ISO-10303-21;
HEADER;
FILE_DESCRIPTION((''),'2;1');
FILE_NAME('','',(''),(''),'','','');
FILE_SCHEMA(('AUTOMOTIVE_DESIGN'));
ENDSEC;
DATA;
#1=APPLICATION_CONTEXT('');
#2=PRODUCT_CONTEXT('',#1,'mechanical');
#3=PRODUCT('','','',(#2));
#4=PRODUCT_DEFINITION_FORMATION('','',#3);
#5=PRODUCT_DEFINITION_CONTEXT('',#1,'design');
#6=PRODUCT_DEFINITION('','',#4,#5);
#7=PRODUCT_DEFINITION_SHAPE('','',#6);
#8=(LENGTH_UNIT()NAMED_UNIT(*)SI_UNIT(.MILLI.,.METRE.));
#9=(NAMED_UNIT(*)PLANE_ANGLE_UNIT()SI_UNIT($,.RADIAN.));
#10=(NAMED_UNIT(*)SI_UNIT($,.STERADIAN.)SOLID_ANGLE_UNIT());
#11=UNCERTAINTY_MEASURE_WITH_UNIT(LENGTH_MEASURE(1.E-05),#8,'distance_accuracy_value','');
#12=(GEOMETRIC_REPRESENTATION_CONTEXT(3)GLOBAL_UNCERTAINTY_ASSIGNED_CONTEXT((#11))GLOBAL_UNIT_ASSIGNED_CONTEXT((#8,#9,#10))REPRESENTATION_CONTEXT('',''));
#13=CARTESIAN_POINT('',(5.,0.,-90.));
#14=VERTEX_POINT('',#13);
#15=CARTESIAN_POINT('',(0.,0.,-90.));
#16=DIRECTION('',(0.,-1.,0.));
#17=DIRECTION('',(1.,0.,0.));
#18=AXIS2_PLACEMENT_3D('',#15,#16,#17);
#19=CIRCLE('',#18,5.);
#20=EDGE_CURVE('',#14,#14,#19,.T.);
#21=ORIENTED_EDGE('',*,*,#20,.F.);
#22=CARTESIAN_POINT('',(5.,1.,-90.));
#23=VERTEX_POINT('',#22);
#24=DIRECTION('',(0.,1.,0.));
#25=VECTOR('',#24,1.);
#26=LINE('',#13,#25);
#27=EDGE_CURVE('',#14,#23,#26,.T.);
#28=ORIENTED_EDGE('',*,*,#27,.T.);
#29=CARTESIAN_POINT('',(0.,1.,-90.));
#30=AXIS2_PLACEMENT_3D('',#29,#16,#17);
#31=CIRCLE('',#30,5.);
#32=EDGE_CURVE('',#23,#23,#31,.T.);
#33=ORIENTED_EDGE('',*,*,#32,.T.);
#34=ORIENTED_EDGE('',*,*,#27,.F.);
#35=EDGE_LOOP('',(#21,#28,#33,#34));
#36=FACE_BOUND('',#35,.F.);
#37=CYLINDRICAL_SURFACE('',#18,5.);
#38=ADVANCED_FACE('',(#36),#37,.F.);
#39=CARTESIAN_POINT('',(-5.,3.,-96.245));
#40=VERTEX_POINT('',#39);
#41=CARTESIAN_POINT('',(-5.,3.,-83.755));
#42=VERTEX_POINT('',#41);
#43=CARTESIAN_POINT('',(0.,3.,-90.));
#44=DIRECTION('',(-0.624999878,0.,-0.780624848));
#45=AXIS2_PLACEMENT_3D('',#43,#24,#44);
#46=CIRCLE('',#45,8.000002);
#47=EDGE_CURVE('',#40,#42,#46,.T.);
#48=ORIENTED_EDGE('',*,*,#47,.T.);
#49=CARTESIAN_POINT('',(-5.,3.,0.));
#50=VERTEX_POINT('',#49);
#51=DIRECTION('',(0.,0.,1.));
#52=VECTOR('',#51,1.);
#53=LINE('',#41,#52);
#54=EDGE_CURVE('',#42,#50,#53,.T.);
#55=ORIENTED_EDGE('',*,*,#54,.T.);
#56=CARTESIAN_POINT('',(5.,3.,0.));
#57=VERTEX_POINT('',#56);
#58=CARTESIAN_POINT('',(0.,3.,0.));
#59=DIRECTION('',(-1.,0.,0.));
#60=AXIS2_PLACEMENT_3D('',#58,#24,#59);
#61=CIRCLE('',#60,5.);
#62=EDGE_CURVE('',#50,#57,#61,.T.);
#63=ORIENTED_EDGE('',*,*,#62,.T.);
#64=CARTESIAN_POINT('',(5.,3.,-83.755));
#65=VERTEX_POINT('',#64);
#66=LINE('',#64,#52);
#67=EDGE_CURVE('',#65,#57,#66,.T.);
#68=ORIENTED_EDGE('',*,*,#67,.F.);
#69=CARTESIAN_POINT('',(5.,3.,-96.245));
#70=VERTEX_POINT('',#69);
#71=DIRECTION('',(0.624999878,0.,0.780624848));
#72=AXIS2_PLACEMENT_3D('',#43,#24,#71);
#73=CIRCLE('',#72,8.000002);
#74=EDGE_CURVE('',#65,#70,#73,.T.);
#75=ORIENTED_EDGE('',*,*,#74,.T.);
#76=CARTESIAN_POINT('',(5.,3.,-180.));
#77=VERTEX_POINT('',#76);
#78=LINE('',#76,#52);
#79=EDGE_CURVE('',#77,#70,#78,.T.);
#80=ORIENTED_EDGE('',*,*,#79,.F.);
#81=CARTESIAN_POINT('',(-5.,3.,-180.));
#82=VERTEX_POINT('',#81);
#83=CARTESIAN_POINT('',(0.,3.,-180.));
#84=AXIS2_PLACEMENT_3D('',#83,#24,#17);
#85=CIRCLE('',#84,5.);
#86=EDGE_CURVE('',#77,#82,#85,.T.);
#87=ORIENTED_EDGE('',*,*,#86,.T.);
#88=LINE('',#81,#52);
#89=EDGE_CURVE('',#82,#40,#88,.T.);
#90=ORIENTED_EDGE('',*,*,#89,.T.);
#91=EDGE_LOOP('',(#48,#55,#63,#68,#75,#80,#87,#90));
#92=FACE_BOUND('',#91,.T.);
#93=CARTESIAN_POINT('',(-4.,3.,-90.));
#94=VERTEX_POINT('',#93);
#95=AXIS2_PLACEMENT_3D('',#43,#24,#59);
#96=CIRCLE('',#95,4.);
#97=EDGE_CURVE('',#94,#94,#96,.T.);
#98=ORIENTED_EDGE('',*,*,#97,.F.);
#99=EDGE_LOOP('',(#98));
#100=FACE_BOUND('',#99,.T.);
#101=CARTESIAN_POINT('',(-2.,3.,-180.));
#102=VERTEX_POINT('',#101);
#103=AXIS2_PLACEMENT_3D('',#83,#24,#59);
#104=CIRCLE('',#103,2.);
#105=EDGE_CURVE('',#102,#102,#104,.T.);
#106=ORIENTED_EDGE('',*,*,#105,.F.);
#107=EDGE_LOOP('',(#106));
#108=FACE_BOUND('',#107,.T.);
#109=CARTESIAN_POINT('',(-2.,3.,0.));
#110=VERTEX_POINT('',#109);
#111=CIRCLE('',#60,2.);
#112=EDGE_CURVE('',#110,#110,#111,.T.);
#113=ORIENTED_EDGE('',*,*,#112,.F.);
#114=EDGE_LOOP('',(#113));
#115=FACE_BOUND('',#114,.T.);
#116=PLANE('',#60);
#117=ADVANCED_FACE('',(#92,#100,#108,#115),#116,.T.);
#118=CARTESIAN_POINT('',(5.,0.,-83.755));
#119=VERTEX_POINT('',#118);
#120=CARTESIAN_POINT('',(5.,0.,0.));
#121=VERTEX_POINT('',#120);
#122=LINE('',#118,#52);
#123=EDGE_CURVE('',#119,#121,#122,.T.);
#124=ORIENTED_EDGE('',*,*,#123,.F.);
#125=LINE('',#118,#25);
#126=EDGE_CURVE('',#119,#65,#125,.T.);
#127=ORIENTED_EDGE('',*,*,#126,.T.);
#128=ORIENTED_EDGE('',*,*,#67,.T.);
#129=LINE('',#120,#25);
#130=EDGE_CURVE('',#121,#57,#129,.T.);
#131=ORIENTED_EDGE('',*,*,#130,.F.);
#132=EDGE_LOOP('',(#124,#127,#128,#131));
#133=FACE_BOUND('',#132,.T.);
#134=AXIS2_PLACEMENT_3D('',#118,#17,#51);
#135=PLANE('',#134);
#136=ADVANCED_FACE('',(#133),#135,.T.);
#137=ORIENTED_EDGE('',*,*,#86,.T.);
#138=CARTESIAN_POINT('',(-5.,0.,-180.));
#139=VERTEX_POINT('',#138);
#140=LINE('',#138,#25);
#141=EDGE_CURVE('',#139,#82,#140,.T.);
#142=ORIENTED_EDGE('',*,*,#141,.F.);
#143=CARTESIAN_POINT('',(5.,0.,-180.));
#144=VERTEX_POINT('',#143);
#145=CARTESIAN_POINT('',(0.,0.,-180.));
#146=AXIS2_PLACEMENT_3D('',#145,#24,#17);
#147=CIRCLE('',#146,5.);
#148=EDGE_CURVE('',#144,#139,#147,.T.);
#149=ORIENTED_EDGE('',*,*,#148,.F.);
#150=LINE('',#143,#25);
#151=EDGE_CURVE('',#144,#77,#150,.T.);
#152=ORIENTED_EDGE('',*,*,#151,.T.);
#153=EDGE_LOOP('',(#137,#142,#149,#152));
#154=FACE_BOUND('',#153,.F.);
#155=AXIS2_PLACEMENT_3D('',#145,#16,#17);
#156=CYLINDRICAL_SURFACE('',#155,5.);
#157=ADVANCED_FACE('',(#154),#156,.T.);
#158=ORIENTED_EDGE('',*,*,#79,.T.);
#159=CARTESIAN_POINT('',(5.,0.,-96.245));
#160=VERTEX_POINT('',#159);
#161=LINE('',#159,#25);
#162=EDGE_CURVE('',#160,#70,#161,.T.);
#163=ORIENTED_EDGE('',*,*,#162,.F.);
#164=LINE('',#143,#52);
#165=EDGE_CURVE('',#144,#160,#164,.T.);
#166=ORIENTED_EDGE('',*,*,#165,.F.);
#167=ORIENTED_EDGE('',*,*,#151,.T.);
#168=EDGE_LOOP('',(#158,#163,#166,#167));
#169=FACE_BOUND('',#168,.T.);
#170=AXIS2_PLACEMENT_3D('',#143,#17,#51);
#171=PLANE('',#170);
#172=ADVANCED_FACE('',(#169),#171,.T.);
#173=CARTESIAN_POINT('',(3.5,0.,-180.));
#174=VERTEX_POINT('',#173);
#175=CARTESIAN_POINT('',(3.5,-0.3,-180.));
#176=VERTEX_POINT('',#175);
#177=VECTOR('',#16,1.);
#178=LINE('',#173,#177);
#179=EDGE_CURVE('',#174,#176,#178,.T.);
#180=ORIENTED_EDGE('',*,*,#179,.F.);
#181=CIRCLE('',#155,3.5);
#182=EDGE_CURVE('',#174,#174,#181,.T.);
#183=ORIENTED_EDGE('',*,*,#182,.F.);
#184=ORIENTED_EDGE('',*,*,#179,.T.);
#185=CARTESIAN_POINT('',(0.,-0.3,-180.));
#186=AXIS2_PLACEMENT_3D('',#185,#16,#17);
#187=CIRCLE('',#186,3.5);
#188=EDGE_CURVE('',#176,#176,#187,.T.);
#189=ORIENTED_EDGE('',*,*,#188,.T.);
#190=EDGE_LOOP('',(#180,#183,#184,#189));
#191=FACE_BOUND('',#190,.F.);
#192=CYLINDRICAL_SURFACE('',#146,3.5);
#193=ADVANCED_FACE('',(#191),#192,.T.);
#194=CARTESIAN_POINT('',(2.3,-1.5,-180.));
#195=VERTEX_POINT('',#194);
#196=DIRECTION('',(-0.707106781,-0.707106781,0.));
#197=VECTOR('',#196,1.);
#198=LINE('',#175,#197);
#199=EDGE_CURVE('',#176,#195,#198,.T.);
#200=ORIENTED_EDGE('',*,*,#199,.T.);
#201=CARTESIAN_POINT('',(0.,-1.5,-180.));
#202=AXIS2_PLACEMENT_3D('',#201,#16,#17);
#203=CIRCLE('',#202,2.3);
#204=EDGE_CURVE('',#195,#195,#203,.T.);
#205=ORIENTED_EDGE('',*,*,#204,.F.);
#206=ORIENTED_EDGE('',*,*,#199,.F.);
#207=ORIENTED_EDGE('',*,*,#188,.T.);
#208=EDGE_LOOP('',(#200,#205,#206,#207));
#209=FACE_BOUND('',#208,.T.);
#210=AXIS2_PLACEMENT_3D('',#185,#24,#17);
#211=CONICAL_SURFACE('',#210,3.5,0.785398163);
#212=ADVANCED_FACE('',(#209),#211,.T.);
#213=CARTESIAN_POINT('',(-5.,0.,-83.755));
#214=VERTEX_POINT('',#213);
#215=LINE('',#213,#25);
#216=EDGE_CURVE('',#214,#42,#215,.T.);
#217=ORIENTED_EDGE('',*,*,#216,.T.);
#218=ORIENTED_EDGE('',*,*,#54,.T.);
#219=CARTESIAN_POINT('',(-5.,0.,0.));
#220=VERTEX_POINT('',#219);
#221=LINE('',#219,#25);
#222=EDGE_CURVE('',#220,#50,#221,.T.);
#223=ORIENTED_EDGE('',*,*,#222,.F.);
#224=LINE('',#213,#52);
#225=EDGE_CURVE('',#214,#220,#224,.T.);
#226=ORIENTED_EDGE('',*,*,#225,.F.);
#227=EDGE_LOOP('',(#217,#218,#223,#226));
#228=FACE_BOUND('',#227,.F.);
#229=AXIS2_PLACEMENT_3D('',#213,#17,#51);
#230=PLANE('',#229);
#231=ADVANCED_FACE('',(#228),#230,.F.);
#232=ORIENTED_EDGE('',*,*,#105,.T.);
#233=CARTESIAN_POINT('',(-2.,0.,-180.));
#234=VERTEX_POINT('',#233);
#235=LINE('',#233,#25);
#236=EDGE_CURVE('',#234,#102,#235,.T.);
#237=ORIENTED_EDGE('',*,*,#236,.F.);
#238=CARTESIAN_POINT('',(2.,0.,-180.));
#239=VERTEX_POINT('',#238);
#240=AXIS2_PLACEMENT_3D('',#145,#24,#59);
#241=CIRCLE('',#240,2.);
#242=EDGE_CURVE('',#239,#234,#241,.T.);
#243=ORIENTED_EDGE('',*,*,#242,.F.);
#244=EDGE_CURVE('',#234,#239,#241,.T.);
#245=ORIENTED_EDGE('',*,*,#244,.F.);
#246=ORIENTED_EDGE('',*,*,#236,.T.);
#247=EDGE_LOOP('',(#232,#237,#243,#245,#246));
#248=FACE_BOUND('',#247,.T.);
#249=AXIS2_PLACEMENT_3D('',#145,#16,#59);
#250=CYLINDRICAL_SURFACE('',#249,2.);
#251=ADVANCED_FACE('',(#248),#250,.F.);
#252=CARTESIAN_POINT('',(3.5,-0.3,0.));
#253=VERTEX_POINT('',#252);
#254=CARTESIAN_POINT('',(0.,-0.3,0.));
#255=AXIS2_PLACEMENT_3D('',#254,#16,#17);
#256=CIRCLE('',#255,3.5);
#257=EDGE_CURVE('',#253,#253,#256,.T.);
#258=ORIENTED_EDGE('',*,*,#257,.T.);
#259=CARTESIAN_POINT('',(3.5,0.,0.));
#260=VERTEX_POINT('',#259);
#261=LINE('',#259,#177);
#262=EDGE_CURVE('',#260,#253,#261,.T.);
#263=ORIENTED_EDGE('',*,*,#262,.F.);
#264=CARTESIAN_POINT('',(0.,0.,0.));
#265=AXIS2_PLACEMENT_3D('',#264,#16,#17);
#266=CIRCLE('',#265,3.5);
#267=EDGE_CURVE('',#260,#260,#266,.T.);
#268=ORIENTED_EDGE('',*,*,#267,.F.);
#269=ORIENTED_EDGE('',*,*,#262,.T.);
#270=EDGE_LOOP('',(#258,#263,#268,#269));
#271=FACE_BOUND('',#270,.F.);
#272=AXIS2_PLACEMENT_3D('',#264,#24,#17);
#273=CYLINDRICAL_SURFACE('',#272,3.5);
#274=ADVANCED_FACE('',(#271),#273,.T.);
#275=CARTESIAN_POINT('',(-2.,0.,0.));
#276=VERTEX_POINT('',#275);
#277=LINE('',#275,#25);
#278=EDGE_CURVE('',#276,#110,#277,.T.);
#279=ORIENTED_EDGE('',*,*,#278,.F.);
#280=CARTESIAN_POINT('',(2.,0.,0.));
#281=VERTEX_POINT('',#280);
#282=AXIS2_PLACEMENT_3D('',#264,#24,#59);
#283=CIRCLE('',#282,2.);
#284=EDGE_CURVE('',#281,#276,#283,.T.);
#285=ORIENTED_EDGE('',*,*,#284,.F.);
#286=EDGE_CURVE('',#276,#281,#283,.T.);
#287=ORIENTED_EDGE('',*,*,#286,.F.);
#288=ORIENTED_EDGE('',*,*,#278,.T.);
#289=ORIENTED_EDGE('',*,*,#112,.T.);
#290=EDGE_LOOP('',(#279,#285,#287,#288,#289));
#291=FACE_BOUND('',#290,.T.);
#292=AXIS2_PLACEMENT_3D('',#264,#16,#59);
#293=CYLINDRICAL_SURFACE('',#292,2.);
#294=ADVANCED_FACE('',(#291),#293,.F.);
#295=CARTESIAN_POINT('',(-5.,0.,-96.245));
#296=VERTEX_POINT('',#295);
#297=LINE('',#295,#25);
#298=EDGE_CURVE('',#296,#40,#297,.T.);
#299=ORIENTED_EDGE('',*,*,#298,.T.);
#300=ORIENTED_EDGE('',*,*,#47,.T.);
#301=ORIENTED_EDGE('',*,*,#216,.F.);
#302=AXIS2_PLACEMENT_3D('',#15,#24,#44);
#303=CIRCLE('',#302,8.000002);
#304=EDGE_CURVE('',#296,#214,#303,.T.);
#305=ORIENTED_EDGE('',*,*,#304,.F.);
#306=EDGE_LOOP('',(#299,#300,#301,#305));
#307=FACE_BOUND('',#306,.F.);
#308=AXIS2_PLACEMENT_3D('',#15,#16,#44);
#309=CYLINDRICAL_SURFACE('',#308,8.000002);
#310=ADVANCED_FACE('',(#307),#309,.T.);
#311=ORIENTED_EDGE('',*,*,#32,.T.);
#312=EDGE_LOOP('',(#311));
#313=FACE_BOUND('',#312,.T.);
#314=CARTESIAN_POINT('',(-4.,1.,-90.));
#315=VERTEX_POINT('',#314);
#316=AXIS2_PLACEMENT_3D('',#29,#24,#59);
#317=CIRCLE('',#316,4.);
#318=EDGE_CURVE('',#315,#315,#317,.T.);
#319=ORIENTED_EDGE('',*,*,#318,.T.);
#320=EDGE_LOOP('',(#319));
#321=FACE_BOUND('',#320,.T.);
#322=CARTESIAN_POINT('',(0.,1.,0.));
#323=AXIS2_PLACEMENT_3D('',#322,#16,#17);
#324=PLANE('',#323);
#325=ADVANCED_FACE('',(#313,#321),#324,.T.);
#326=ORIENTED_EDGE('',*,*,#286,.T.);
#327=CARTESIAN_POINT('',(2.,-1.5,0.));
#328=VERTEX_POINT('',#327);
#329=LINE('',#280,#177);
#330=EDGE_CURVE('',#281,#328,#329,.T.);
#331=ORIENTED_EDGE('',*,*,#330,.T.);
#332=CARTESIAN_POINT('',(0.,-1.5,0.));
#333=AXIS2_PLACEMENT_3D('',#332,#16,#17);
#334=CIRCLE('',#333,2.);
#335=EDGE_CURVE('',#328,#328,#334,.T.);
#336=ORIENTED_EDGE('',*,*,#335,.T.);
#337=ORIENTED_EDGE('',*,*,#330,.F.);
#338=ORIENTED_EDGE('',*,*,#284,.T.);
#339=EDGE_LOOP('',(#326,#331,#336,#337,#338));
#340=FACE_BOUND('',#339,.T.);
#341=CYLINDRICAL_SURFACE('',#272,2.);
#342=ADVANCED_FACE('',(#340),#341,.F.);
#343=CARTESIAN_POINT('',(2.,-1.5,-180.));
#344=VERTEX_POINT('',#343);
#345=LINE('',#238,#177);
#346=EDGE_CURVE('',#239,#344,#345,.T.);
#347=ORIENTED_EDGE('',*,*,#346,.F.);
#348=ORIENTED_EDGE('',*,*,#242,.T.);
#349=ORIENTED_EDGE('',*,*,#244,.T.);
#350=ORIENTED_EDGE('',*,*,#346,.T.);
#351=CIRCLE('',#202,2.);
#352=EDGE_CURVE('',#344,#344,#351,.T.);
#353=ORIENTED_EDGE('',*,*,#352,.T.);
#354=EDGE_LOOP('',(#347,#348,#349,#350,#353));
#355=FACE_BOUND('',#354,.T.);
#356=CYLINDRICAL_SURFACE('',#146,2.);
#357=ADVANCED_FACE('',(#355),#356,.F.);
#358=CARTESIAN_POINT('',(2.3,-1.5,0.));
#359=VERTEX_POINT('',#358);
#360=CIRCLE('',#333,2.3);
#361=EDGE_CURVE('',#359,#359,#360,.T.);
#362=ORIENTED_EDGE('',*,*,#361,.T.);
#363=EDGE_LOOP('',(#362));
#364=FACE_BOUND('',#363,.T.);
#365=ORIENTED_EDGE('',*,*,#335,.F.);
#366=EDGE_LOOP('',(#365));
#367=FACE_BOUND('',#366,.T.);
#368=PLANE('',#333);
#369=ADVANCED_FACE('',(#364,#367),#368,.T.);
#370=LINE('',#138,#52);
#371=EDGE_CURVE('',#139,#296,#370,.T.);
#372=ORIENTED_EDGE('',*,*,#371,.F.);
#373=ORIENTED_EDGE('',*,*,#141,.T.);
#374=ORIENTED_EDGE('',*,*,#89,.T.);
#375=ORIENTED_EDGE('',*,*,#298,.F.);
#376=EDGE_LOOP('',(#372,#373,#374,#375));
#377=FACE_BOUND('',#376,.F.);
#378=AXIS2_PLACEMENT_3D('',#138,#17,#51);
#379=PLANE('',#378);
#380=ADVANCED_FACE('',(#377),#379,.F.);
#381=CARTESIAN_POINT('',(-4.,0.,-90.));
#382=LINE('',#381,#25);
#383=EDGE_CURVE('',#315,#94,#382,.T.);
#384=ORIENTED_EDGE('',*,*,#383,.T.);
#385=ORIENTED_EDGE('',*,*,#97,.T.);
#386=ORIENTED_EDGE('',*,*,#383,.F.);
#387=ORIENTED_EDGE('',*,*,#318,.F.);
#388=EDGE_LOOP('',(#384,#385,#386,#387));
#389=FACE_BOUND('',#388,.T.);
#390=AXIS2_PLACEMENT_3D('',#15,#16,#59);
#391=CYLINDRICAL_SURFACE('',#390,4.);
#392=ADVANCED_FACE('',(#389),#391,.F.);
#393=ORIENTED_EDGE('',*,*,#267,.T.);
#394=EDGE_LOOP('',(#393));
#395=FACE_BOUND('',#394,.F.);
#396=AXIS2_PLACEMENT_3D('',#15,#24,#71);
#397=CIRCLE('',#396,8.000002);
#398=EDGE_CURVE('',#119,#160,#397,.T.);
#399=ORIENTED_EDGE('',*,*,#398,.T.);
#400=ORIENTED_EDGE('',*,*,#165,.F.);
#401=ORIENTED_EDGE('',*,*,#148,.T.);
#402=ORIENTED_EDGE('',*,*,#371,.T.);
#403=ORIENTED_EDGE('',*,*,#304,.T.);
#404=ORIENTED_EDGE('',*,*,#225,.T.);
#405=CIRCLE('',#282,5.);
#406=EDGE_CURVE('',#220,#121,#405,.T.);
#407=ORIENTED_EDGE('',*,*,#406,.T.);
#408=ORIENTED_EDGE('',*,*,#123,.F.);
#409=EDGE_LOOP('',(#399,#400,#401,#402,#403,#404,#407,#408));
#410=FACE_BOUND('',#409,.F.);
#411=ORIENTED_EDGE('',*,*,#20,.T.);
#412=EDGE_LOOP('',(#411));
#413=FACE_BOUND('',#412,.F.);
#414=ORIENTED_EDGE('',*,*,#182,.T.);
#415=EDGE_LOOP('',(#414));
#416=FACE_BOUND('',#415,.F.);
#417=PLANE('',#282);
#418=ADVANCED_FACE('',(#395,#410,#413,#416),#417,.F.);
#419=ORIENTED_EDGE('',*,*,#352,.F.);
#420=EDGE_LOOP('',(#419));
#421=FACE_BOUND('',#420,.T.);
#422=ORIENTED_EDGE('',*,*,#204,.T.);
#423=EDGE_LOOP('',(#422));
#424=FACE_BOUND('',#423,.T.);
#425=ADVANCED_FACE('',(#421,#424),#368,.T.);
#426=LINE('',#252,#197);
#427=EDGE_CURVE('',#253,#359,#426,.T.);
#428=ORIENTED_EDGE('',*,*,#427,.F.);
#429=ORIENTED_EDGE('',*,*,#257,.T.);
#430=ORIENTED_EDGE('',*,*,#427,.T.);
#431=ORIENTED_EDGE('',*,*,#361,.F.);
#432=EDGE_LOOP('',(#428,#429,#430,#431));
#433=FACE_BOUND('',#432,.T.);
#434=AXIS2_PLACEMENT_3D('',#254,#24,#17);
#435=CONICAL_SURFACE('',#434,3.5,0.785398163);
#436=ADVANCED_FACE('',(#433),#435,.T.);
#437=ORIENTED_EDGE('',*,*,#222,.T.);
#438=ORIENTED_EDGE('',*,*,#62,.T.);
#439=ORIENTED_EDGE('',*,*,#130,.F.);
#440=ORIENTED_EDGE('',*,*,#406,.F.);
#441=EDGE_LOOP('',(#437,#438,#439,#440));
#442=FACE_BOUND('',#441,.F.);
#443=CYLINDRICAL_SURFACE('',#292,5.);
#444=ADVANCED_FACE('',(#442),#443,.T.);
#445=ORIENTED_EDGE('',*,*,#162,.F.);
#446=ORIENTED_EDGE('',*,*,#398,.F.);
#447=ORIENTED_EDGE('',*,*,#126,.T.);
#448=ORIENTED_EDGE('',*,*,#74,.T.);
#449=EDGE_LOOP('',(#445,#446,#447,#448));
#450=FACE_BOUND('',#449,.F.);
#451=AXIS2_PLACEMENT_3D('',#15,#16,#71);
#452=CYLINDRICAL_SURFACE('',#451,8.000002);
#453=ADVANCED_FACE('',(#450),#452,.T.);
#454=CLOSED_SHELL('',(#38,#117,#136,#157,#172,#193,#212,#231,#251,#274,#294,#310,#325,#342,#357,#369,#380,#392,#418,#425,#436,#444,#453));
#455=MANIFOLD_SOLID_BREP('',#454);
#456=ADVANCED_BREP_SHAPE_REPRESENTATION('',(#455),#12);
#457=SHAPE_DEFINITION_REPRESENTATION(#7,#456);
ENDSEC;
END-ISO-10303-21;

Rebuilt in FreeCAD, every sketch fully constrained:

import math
import FreeCAD as App
import Part
import Sketcher

V = App.Vector


def edges_at(feature, points):
    """Names of the edges that pass closest to the given points."""
    edges = feature.Shape.Edges
    near = lambda p: min(range(len(edges)), key=lambda i: edges[i].distToShape(Part.Vertex(*p))[0])
    return sorted({f"Edge{near(p) + 1}" for p in points})

doc = App.newDocument("Part")
body = doc.addObject("PartDesign::Body", "Body")

# Sketch on XZ plane
sketch1 = doc.addObject("Sketcher::SketchObject", "Sketch")
body.addObject(sketch1)
sketch1.AttachmentSupport = (doc.XZ_Plane, [""])
sketch1.MapMode = "FlatFace"
sketch1.addGeometry(Part.LineSegment(V(-5, -83.8, 0), V(-5, 0, 0)), False)
sketch1.addGeometry(Part.ArcOfCircle(Part.Circle(V(0, 0, 0), V(0, 0, 1), 5), math.radians(0), math.radians(180)), False)
sketch1.addGeometry(Part.LineSegment(V(5, 0, 0), V(5, -83.8, 0)), False)
sketch1.addGeometry(Part.ArcOfCircle(Part.Circle(V(0, -90, 0), V(0, 0, 1), 8), math.radians(-51), math.radians(51)), False)
sketch1.addGeometry(Part.LineSegment(V(5, -96.2, 0), V(5, -180, 0)), False)
sketch1.addGeometry(Part.ArcOfCircle(Part.Circle(V(0, -180, 0), V(0, 0, 1), 5), math.radians(180), math.radians(360)), False)
sketch1.addGeometry(Part.LineSegment(V(-5, -180, 0), V(-5, -96.2, 0)), False)
sketch1.addGeometry(Part.ArcOfCircle(Part.Circle(V(0, -90, 0), V(0, 0, 1), 8), math.radians(129), math.radians(231)), False)
sketch1.addGeometry(Part.Circle(V(0, -180, 0), V(0, 0, 1), 2), False)
sketch1.addGeometry(Part.Circle(V(0, -90, 0), V(0, 0, 1), 4), False)
sketch1.addGeometry(Part.Circle(V(0, 0, 0), V(0, 0, 1), 2), False)
sketch1.addConstraint(Sketcher.Constraint("Tangent", 0, 2, 1, 2))
sketch1.addConstraint(Sketcher.Constraint("Tangent", 1, 1, 2, 1))
sketch1.addConstraint(Sketcher.Constraint("Coincident", 2, 2, 3, 2))
sketch1.addConstraint(Sketcher.Constraint("Coincident", 3, 1, 4, 1))
sketch1.addConstraint(Sketcher.Constraint("Tangent", 4, 2, 5, 2))
sketch1.addConstraint(Sketcher.Constraint("Tangent", 5, 1, 6, 1))
sketch1.addConstraint(Sketcher.Constraint("Coincident", 6, 2, 7, 2))
sketch1.addConstraint(Sketcher.Constraint("Coincident", 7, 1, 0, 1))
sketch1.addConstraint(Sketcher.Constraint("Vertical", 0))
sketch1.addConstraint(Sketcher.Constraint("Vertical", 2))
sketch1.addConstraint(Sketcher.Constraint("Vertical", 4))
sketch1.addConstraint(Sketcher.Constraint("Vertical", 6))
sketch1.addConstraint(Sketcher.Constraint("Coincident", 1, 3, -1, 1))
sketch1.addConstraint(Sketcher.Constraint("Coincident", 10, 3, -1, 1))
sketch1.addConstraint(Sketcher.Constraint("Coincident", 7, 3, 3, 3))
sketch1.addConstraint(Sketcher.Constraint("Coincident", 8, 3, 5, 3))
sketch1.addConstraint(Sketcher.Constraint("Coincident", 9, 3, 3, 3))
sketch1.addConstraint(Sketcher.Constraint("Equal", 1, 5))
sketch1.addConstraint(Sketcher.Constraint("Equal", 3, 7))
sketch1.addConstraint(Sketcher.Constraint("Equal", 8, 10))
sketch1.addConstraint(Sketcher.Constraint("Symmetric", 3, 1, 6, 2, -2))
sketch1.addConstraint(Sketcher.Constraint("Equal", 2, 4))
sketch1.addConstraint(Sketcher.Constraint("Diameter", 8, 4.0))
sketch1.addConstraint(Sketcher.Constraint("Diameter", 9, 8.0))
sketch1.addConstraint(Sketcher.Constraint("Radius", 1, 5.0))
sketch1.addConstraint(Sketcher.Constraint("Radius", 3, 8.0))
sketch1.addConstraint(Sketcher.Constraint("DistanceY", 5, 3, -1, 1, 180.0))
pad1 = doc.addObject("PartDesign::Pad", "Pad")
body.addObject(pad1)
pad1.Profile = sketch1
pad1.Length = 3
pad1.Reversed = True

# Sketch on XZ plane
sketch2 = doc.addObject("Sketcher::SketchObject", "Sketch001")
body.addObject(sketch2)
sketch2.AttachmentSupport = (doc.XZ_Plane, [""])
sketch2.MapMode = "FlatFace"
sketch2.addGeometry(Part.Circle(V(0, 0, 0), V(0, 0, 1), 3.5), False)
sketch2.addGeometry(Part.Circle(V(0, 0, 0), V(0, 0, 1), 2), False)
sketch2.addGeometry(Part.Circle(V(0, -180, 0), V(0, 0, 1), 3.5), False)
sketch2.addGeometry(Part.Circle(V(0, -180, 0), V(0, 0, 1), 2), False)
sketch2.addConstraint(Sketcher.Constraint("Coincident", 0, 3, -1, 1))
sketch2.addConstraint(Sketcher.Constraint("Coincident", 1, 3, -1, 1))
sketch2.addConstraint(Sketcher.Constraint("Coincident", 3, 3, 2, 3))
sketch2.addConstraint(Sketcher.Constraint("Equal", 0, 2))
sketch2.addConstraint(Sketcher.Constraint("Equal", 1, 3))
sketch2.addConstraint(Sketcher.Constraint("PointOnObject", 2, 3, -2))
sketch2.addConstraint(Sketcher.Constraint("Diameter", 0, 7.0))
sketch2.addConstraint(Sketcher.Constraint("Diameter", 1, 4.0))
sketch2.addConstraint(Sketcher.Constraint("DistanceY", 2, 3, -1, 1, 180.0))
pad2 = doc.addObject("PartDesign::Pad", "Pad001")
body.addObject(pad2)
pad2.Profile = sketch2
pad2.Length = 1.5
doc.recompute()

chamfer = doc.addObject("PartDesign::Chamfer", "Chamfer")
body.addObject(chamfer)
chamfer.Base = (pad2, edges_at(pad2, [(-3.5, -1.5, 0), (-3.5, -1.5, -180)]))
chamfer.Size = 1.2

# Sketch on XZ plane
sketch3 = doc.addObject("Sketcher::SketchObject", "Sketch002")
body.addObject(sketch3)
sketch3.AttachmentSupport = (doc.XZ_Plane, [""])
sketch3.MapMode = "FlatFace"
sketch3.addGeometry(Part.Circle(V(0, -90, 0), V(0, 0, 1), 5), False)
sketch3.addGeometry(Part.Circle(V(0, -90, 0), V(0, 0, 1), 4), False)
sketch3.addConstraint(Sketcher.Constraint("Coincident", 1, 3, 0, 3))
sketch3.addConstraint(Sketcher.Constraint("PointOnObject", 0, 3, -2))
sketch3.addConstraint(Sketcher.Constraint("Diameter", 0, 10.0))
sketch3.addConstraint(Sketcher.Constraint("Diameter", 1, 8.0))
sketch3.addConstraint(Sketcher.Constraint("DistanceY", 0, 3, -1, 1, 90.0))
pocket1 = doc.addObject("PartDesign::Pocket", "Pocket")
body.addObject(pocket1)
pocket1.Profile = sketch3
pocket1.Length = 1

doc.recompute()
